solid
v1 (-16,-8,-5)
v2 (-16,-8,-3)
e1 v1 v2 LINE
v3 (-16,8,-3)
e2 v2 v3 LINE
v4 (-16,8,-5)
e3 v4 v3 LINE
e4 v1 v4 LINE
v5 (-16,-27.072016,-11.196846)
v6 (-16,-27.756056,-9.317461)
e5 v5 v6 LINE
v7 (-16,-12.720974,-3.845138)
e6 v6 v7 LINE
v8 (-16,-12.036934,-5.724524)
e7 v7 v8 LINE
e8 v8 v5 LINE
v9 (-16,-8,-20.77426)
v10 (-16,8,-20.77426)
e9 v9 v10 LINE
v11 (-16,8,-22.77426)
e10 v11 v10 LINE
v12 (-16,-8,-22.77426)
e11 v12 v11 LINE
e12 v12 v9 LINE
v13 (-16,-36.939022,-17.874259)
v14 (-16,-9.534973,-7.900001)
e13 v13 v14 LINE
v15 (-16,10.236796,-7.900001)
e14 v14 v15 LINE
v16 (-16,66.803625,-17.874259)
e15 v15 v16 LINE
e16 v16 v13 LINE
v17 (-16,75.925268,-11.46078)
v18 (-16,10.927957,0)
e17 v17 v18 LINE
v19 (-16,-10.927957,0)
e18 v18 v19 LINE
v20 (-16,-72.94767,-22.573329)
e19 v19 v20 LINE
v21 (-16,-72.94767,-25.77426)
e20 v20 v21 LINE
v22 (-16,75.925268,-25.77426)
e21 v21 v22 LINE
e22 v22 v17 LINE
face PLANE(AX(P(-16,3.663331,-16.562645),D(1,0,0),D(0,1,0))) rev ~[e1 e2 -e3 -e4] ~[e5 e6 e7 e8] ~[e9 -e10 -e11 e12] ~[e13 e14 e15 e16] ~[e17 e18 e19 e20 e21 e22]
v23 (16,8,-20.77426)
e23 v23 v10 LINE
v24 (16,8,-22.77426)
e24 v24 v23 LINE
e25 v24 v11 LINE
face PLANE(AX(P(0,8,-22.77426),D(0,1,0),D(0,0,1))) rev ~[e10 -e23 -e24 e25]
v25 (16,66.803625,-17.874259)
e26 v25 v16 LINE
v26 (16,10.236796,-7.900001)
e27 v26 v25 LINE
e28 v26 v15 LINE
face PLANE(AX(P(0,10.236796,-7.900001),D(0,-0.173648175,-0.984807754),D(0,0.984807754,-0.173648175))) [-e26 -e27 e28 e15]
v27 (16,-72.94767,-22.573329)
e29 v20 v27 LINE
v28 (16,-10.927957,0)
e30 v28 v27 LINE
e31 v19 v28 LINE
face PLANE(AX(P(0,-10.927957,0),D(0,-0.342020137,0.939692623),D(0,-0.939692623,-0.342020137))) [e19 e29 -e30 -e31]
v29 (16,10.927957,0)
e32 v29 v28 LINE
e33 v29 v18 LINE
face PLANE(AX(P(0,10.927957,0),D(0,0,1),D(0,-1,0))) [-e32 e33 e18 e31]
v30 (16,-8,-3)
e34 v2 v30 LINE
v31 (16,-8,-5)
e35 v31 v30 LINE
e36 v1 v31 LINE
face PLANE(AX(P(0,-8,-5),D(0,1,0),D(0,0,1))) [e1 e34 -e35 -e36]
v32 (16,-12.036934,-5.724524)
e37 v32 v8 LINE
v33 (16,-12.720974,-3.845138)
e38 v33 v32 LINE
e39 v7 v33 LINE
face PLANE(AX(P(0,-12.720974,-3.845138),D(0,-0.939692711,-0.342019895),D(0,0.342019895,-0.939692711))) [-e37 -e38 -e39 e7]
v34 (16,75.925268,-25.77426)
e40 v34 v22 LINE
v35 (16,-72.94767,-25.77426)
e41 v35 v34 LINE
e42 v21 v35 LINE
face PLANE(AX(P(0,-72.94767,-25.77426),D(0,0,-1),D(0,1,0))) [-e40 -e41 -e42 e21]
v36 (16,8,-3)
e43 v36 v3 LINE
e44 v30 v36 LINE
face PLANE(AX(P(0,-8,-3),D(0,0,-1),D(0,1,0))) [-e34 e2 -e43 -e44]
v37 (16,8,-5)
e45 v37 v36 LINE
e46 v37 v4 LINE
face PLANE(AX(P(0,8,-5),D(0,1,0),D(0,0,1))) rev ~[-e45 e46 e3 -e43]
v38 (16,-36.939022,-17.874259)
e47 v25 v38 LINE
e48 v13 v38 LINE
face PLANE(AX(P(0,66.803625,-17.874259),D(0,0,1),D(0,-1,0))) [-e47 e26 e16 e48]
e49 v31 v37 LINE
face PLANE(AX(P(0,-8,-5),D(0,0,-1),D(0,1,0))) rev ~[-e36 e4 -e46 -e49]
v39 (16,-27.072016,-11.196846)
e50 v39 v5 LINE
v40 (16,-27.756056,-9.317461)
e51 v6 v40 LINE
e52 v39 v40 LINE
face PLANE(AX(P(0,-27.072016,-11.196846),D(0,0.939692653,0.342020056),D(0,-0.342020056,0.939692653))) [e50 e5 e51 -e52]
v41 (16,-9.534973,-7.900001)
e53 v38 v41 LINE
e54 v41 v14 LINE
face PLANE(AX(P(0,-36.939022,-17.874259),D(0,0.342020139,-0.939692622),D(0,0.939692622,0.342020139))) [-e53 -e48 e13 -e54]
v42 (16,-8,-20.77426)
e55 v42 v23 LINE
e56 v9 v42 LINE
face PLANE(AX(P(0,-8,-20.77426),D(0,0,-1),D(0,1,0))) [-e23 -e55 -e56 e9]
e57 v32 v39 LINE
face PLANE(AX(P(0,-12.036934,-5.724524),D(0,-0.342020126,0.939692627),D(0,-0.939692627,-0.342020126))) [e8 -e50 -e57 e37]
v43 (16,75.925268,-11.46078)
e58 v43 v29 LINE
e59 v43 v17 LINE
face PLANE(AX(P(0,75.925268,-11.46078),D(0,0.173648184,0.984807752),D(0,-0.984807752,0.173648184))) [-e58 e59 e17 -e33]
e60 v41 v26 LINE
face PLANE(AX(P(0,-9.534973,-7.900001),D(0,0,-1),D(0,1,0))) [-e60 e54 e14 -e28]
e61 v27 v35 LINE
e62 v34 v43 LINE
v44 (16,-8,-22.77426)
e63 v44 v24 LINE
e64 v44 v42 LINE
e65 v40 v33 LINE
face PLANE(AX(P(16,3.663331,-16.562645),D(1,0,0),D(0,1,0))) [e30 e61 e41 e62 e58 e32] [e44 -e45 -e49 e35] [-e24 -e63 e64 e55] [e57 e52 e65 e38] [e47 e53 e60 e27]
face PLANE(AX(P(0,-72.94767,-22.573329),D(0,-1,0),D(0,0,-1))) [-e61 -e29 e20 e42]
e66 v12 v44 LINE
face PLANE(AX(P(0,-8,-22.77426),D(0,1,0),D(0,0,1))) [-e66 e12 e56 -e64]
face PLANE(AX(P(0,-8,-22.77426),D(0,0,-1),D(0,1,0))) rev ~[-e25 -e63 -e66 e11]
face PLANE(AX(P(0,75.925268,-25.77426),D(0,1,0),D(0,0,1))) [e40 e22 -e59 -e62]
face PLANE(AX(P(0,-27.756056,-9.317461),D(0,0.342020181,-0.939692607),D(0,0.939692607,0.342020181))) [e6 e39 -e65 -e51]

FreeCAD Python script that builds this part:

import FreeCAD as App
import Part
import Sketcher
Q = App.Units.Quantity


def add_polygon(sketch, points):
    """Adds a closed chain of lines whose ends are joined by coincident constraints."""
    first, n = sketch.GeometryCount, len(points)
    for a, b in zip(points, points[1:] + points[:1]):
        sketch.addGeometry(Part.LineSegment(App.Vector(*a, 0), App.Vector(*b, 0)), False)
    for i in range(n):
        sketch.addConstraint(Sketcher.Constraint("Coincident", first + i, 2, first + (i + 1) % n, 1))

doc = App.newDocument("Part")
body = doc.addObject("PartDesign::Body", "Body")

sketch1 = body.newObject("Sketcher::SketchObject", "Sketch")
sketch1.AttachmentSupport = (doc.getObject("YZ_Plane"), [""])
sketch1.MapMode = "FlatFace"
add_polygon(sketch1, [(10.9, 0), (-10.9, 0), (-72.9, -22.6), (-72.9, -25.8), (75.9, -25.8), (75.9, -11.5)])
add_polygon(sketch1, [(8, -22.8), (-8, -22.8), (-8, -20.8), (8, -20.8)])
add_polygon(sketch1, [(66.8, -17.9), (-36.9, -17.9), (-9.5, -7.9), (10.2, -7.9)])
add_polygon(sketch1, [(-27.1, -11.2), (-27.8, -9.3), (-12.7, -3.8), (-12, -5.7)])
add_polygon(sketch1, [(8, -5), (-8, -5), (-8, -3), (8, -3)])
sketch1.addConstraint(Sketcher.Constraint("Horizontal", 0))
sketch1.addConstraint(Sketcher.Constraint("Vertical", 2))
sketch1.addConstraint(Sketcher.Constraint("Horizontal", 3))
sketch1.addConstraint(Sketcher.Constraint("Vertical", 4))
sketch1.addConstraint(Sketcher.Constraint("Horizontal", 6))
sketch1.addConstraint(Sketcher.Constraint("Vertical", 7))
sketch1.addConstraint(Sketcher.Constraint("Horizontal", 8))
sketch1.addConstraint(Sketcher.Constraint("Vertical", 9))
sketch1.addConstraint(Sketcher.Constraint("Horizontal", 10))
sketch1.addConstraint(Sketcher.Constraint("Horizontal", 12))
sketch1.addConstraint(Sketcher.Constraint("Horizontal", 18))
sketch1.addConstraint(Sketcher.Constraint("Vertical", 19))
sketch1.addConstraint(Sketcher.Constraint("Horizontal", 20))
sketch1.addConstraint(Sketcher.Constraint("Vertical", 21))
sketch1.addConstraint(Sketcher.Constraint("Symmetric", 0, 2, 5, 2, -1, 1))
sketch1.addConstraint(Sketcher.Constraint("Parallel", 1, 11))
sketch1.addConstraint(Sketcher.Constraint("Parallel", 5, 13))
sketch1.addConstraint(Sketcher.Constraint("Perpendicular", 11, 14))
sketch1.addConstraint(Sketcher.Constraint("Perpendicular", 14, 15))
sketch1.addConstraint(Sketcher.Constraint("Perpendicular", 15, 16))
sketch1.addConstraint(Sketcher.Constraint("Perpendicular", 16, 17))
sketch1.addConstraint(Sketcher.Constraint("Vertical", 7, 2, 18, 2))
sketch1.addConstraint(Sketcher.Constraint("Vertical", 9, 2, 20, 2))
sketch1.addConstraint(Sketcher.Constraint("Equal", 9, 19))
sketch1.addConstraint(Sketcher.Constraint("Equal", 1, 5))
sketch1.addConstraint(Sketcher.Constraint("DistanceX", 6, 2, 6, 1, 16.0))
sketch1.addConstraint(Sketcher.Constraint("DistanceY", 7, 1, 7, 2, 2.0))
sketch1.addConstraint(Sketcher.Constraint("Angle", 1, Q("-160 deg")))
sketch1.addConstraint(Sketcher.Constraint("Angle", 5, Q("170 deg")))
sketch1.addConstraint(Sketcher.Constraint("Distance", 1, 66.0))
sketch1.addConstraint(Sketcher.Constraint("Distance", 14, 2.0))
sketch1.addConstraint(Sketcher.Constraint("Distance", 15, 16.0))
sketch1.addConstraint(Sketcher.Constraint("DistanceX", 6, 2, -1, 1, 8.0))
sketch1.addConstraint(Sketcher.Constraint("DistanceY", 18, 2, -1, 1, 5.0))
sketch1.addConstraint(Sketcher.Constraint("DistanceY", 2, 2, 6, 2, 3.0))
sketch1.addConstraint(Sketcher.Constraint("DistanceY", 11, 2, -1, 1, 7.900001))
sketch1.addConstraint(Sketcher.Constraint("DistanceY", 7, 2, 10, 2, 2.900001))
sketch1.addConstraint(Sketcher.Constraint("DistanceX", 15, 2, 11, 2, 3.186001))
sketch1.addConstraint(Sketcher.Constraint("DistanceX", 3, 1, 3, 2, 148.872938))
sketch1.addConstraint(Sketcher.Constraint("DistanceX", 12, 1, 12, 2, 19.771769))
sketch1.addConstraint(Sketcher.Constraint("DistanceY", 2, 2, 2, 1, 3.200931))
sketch1.addConstraint(Sketcher.Constraint("DistanceX", 14, 2, 0, 2, 16.828099))
sketch1.addConstraint(Sketcher.Constraint("DistanceY", 7, 2, 14, 2, 11.456799))
pad1 = body.newObject("PartDesign::Pad", "Pad")
pad1.Profile = sketch1
pad1.Length = 32
pad1.Midplane = True

doc.recompute()
